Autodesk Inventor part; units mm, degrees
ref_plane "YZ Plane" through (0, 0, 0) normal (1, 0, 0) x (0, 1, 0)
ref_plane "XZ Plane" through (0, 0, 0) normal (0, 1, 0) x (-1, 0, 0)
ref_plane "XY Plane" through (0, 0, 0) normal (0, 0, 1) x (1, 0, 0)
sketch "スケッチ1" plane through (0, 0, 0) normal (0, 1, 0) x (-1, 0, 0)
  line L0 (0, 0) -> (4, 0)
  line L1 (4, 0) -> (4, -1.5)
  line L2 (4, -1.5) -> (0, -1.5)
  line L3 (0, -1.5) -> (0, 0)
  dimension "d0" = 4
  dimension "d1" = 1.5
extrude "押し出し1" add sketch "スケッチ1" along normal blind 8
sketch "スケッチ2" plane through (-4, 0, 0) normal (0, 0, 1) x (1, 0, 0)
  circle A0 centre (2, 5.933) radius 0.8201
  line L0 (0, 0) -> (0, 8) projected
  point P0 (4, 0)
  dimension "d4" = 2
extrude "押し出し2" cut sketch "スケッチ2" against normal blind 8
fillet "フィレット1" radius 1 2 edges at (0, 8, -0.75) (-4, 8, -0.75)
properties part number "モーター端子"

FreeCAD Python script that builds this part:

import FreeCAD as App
import Part
import Sketcher
from FreeCAD import Vector


def edges_at(feature, points):
    """Names of the edges that pass closest to the given points."""
    edges = feature.Shape.Edges
    near = lambda p: min(range(len(edges)), key=lambda i: edges[i].distToShape(Part.Vertex(*p))[0])
    return sorted({f"Edge{near(p) + 1}" for p in points})


def add_polygon(sketch, points):
    """Adds a closed chain of lines whose ends are joined by coincident constraints."""
    first, n = sketch.GeometryCount, len(points)
    for a, b in zip(points, points[1:] + points[:1]):
        sketch.addGeometry(Part.LineSegment(App.Vector(*a, 0), App.Vector(*b, 0)), False)
    for i in range(n):
        sketch.addConstraint(Sketcher.Constraint("Coincident", first + i, 2, first + (i + 1) % n, 1))

doc = App.newDocument("Part")
body = doc.addObject("PartDesign::Body", "Body")

# Sketch on XZ plane
sketch1 = body.newObject("Sketcher::SketchObject", "Sketch")
sketch1.AttachmentSupport = (doc.getObject("XZ_Plane"), [""])
sketch1.MapMode = "FlatFace"
add_polygon(sketch1, [(-4, 0), (0, 0), (0, -1.5), (-4, -1.5)])  # lines 0-3
sketch1.addConstraint([
    Sketcher.Constraint("Horizontal", 0),
    Sketcher.Constraint("Vertical", 1),
    Sketcher.Constraint("Horizontal", 2),
    Sketcher.Constraint("Vertical", 3),
    Sketcher.Constraint("Coincident", 0, 2, -1, 1),
    Sketcher.Constraint("DistanceX", 0, 1, 0, 2, 4.0),
    Sketcher.Constraint("DistanceY", 1, 2, 1, 1, 1.5),
])
pad1 = body.newObject("PartDesign::Pad", "Pad")
pad1.Profile = sketch1
pad1.Length = 8
pad1.Reversed = True

# Sketch on XY plane
sketch2 = body.newObject("Sketcher::SketchObject", "Sketch001")
sketch2.AttachmentSupport = (doc.getObject("XY_Plane"), [""])
sketch2.MapMode = "FlatFace"
sketch2.addGeometry(Part.Circle(Vector(-2, 5.9, 0), Vector(0, 0, 1), 0.8), False)
sketch2.addConstraint([
    Sketcher.Constraint("DistanceX", 0, 3, -1, 1, 2.0),
    Sketcher.Constraint("Diameter", 0, 1.6402),
    Sketcher.Constraint("DistanceY", -1, 1, 0, 3, 5.933),
])
pocket1 = body.newObject("PartDesign::Pocket", "Pocket")
pocket1.Profile = sketch2
pocket1.Length = 8
doc.recompute()

fillet = body.newObject("PartDesign::Fillet", "Fillet")
fillet.Base = (pocket1, edges_at(pocket1, [(0, 8, -0.75), (-4, 8, -0.75)]))
fillet.Radius = 1

doc.recompute()
